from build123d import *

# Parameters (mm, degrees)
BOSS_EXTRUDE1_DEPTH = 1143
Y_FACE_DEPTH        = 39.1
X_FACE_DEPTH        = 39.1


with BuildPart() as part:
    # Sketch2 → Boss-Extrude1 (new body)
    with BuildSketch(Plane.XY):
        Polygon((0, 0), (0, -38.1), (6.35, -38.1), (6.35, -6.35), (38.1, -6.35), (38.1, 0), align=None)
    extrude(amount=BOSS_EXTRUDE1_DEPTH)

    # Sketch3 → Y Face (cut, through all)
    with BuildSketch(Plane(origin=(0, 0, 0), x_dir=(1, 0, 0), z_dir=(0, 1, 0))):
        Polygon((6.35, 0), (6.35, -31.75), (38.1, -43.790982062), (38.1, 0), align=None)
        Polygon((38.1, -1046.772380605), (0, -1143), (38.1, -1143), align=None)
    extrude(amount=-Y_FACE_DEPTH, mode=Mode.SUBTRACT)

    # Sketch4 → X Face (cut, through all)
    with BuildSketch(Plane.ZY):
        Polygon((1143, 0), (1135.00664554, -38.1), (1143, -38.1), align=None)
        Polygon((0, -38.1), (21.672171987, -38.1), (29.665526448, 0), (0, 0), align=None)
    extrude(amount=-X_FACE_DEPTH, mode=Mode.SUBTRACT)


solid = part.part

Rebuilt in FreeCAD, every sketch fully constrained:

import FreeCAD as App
import Part
import Sketcher
Q = App.Units.Quantity

doc = App.newDocument("Part")
params = doc.addObject("Spreadsheet::Sheet", "Params")
for row, (alias, value) in enumerate([
    ("sketch1_width", "1.5 in"),
    ("sketch1_width2", "0.25 in"),
    ("pad1_length", "45 in"),
    ("sketch2_width", "1.5 in"),
    ("sketch2_width2", "1.25 in"),
    ("sketch3_width", "1.5 in"),
], start=1):
    params.set(f"A{row}", alias)
    params.set(f"B{row}", "=" + value)
    params.setAlias(f"B{row}", alias)

body = doc.addObject("PartDesign::Body", "Body")

sketch1 = doc.addObject("Sketcher::SketchObject", "Sketch")
body.addObject(sketch1)
sketch1.AttachmentSupport = (doc.XY_Plane, [""])
sketch1.MapMode = "FlatFace"
sketch1.addGeometry([
    Part.LineSegment(App.Vector(0, 0, 0), App.Vector(0, -38, 0)),
    Part.LineSegment(App.Vector(0, -38, 0), App.Vector(6, -38, 0)),
    Part.LineSegment(App.Vector(6, -38, 0), App.Vector(6, -6, 0)),
    Part.LineSegment(App.Vector(6, -6, 0), App.Vector(38, -6, 0)),
    Part.LineSegment(App.Vector(38, -6, 0), App.Vector(38, 0, 0)),
    Part.LineSegment(App.Vector(38, 0, 0), App.Vector(0, 0, 0)),
], False)
sketch1.addConstraint([
    Sketcher.Constraint("Coincident", 0, 2, 1, 1),
    Sketcher.Constraint("Coincident", 1, 2, 2, 1),
    Sketcher.Constraint("Coincident", 2, 2, 3, 1),
    Sketcher.Constraint("Coincident", 3, 2, 4, 1),
    Sketcher.Constraint("Coincident", 4, 2, 5, 1),
    Sketcher.Constraint("Coincident", 5, 2, 0, 1),
    Sketcher.Constraint("Vertical", 0),
    Sketcher.Constraint("Horizontal", 1),
    Sketcher.Constraint("Vertical", 2),
    Sketcher.Constraint("Horizontal", 3),
    Sketcher.Constraint("Vertical", 4),
    Sketcher.Constraint("Horizontal", 5),
    Sketcher.Constraint("Coincident", 5, 2, -1, 1),
    Sketcher.Constraint("Equal", 5, 0),
    Sketcher.Constraint("Equal", 3, 2),
    Sketcher.Constraint("DistanceX", 5, 2, 5, 1, Q("1.5 in")),
    Sketcher.Constraint("DistanceX", 1, 1, 1, 2, Q("0.25 in")),
])
sketch1.setExpression("Constraints[15]", "Params.sketch1_width")
sketch1.setExpression("Constraints[16]", "Params.sketch1_width2")
pad1 = doc.addObject("PartDesign::Pad", "Pad")
body.addObject(pad1)
pad1.Profile = sketch1
pad1.setExpression("Length", "Params.pad1_length")

sketch2 = doc.addObject("Sketcher::SketchObject", "Sketch001")
body.addObject(sketch2)
sketch2.AttachmentSupport = (doc.XZ_Plane, [""])
sketch2.MapMode = "FlatFace"
sketch2.addGeometry([
    Part.LineSegment(App.Vector(6, 0, 0), App.Vector(6, 32, 0)),
    Part.LineSegment(App.Vector(6, 32, 0), App.Vector(38, 44, 0)),
    Part.LineSegment(App.Vector(38, 44, 0), App.Vector(38, 0, 0)),
    Part.LineSegment(App.Vector(38, 0, 0), App.Vector(6, 0, 0)),
    Part.LineSegment(App.Vector(38, 1047, 0), App.Vector(0, 1143, 0)),
    Part.LineSegment(App.Vector(0, 1143, 0), App.Vector(38, 1143, 0)),
    Part.LineSegment(App.Vector(38, 1143, 0), App.Vector(38, 1047, 0)),
], False)
sketch2.addConstraint([
    Sketcher.Constraint("Coincident", 0, 2, 1, 1),
    Sketcher.Constraint("Coincident", 1, 2, 2, 1),
    Sketcher.Constraint("Coincident", 2, 2, 3, 1),
    Sketcher.Constraint("Coincident", 3, 2, 0, 1),
    Sketcher.Constraint("Coincident", 4, 2, 5, 1),
    Sketcher.Constraint("Coincident", 5, 2, 6, 1),
    Sketcher.Constraint("Coincident", 6, 2, 4, 1),
    Sketcher.Constraint("Vertical", 0),
    Sketcher.Constraint("Vertical", 2),
    Sketcher.Constraint("Horizontal", 3),
    Sketcher.Constraint("Horizontal", 5),
    Sketcher.Constraint("Vertical", 6),
    Sketcher.Constraint("PointOnObject", 2, 2, -1),
    Sketcher.Constraint("PointOnObject", 4, 2, -2),
    Sketcher.Constraint("Vertical", 2, 2, 5, 2),
    Sketcher.Constraint("Equal", 3, 0),
    Sketcher.Constraint("DistanceX", 5, 1, 5, 2, Q("1.5 in")),
    Sketcher.Constraint("DistanceY", -1, 1, 4, 2, Q("45 in")),
    Sketcher.Constraint("DistanceX", 3, 2, 3, 1, Q("1.25 in")),
    Sketcher.Constraint("DistanceY", 6, 2, 6, 1, Q("96.227619 mm")),
    Sketcher.Constraint("DistanceY", 1, 2, 6, 2, Q("1002.981399 mm")),
])
sketch2.setExpression("Constraints[16]", "Params.sketch2_width")
sketch2.setExpression("Constraints[18]", "Params.sketch2_width2")
pocket1 = doc.addObject("PartDesign::Pocket", "Pocket")
body.addObject(pocket1)
pocket1.Profile = sketch2
pocket1.Type = "ThroughAll"
pocket1.Reversed = True

sketch3 = doc.addObject("Sketcher::SketchObject", "Sketch002")
body.addObject(sketch3)
sketch3.AttachmentSupport = (doc.YZ_Plane, [""])
sketch3.MapMode = "FlatFace"
sketch3.addGeometry([
    Part.LineSegment(App.Vector(0, 1143, 0), App.Vector(-38, 1135, 0)),
    Part.LineSegment(App.Vector(-38, 1135, 0), App.Vector(-38, 1143, 0)),
    Part.LineSegment(App.Vector(-38, 1143, 0), App.Vector(0, 1143, 0)),
    Part.LineSegment(App.Vector(-38, 0, 0), App.Vector(-38, 22, 0)),
    Part.LineSegment(App.Vector(-38, 22, 0), App.Vector(0, 30, 0)),
    Part.LineSegment(App.Vector(0, 30, 0), App.Vector(0, 0, 0)),
    Part.LineSegment(App.Vector(0, 0, 0), App.Vector(-38, 0, 0)),
], False)
sketch3.addConstraint([
    Sketcher.Constraint("Coincident", 0, 2, 1, 1),
    Sketcher.Constraint("Coincident", 1, 2, 2, 1),
    Sketcher.Constraint("Coincident", 2, 2, 0, 1),
    Sketcher.Constraint("Coincident", 3, 2, 4, 1),
    Sketcher.Constraint("Coincident", 4, 2, 5, 1),
    Sketcher.Constraint("Coincident", 5, 2, 6, 1),
    Sketcher.Constraint("Coincident", 6, 2, 3, 1),
    Sketcher.Constraint("Vertical", 1),
    Sketcher.Constraint("Horizontal", 2),
    Sketcher.Constraint("Vertical", 3),
    Sketcher.Constraint("Vertical", 5),
    Sketcher.Constraint("Horizontal", 6),
    Sketcher.Constraint("Coincident", 5, 2, -1, 1),
    Sketcher.Constraint("PointOnObject", 2, 2, -2),
    Sketcher.Constraint("Parallel", 0, 4),
    Sketcher.Constraint("Vertical", 1, 2, 3, 2),
    Sketcher.Constraint("DistanceX", 2, 1, 2, 2, Q("1.5 in")),
    Sketcher.Constraint("DistanceY", -1, 1, 1, 2, Q("45 in")),
    Sketcher.Constraint("DistanceY", 3, 1, 3, 2, Q("21.672172 mm")),
    Sketcher.Constraint("Distance", 0, Q("38.929471 mm")),
])
sketch3.setExpression("Constraints[16]", "Params.sketch3_width")
pocket2 = doc.addObject("PartDesign::Pocket", "Pocket001")
body.addObject(pocket2)
pocket2.Profile = sketch3
pocket2.Type = "ThroughAll"
pocket2.Reversed = True

doc.recompute()
